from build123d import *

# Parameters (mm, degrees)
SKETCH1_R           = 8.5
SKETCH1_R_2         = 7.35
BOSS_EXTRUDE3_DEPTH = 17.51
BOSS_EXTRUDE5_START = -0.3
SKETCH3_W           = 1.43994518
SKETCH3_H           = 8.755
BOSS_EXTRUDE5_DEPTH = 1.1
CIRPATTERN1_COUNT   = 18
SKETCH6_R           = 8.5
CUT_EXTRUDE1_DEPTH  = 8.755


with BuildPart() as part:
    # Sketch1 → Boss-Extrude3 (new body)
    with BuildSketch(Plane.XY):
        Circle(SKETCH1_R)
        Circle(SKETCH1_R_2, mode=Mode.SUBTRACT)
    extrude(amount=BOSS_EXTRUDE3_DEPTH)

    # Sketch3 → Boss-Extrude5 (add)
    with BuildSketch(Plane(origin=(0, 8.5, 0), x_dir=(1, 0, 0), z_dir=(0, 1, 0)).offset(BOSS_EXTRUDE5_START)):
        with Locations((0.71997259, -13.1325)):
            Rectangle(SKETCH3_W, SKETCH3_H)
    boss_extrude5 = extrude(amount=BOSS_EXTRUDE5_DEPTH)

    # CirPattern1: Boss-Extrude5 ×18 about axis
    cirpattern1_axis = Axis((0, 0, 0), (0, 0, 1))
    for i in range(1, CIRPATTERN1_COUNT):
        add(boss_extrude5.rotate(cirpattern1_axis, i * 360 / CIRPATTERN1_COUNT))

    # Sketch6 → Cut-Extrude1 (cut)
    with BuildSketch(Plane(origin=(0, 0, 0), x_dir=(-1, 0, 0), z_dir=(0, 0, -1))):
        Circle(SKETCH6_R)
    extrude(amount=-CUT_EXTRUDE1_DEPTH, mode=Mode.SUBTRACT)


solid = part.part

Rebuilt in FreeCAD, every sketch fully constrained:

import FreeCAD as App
import Part
import Sketcher

V = App.Vector
Q = App.Units.Quantity


def add_polygon(sketch, points):
    """Adds a closed chain of lines whose ends are joined by coincident constraints."""
    first, n = sketch.GeometryCount, len(points)
    for a, b in zip(points, points[1:] + points[:1]):
        sketch.addGeometry(Part.LineSegment(App.Vector(*a, 0), App.Vector(*b, 0)), False)
    for i in range(n):
        sketch.addConstraint(Sketcher.Constraint("Coincident", first + i, 2, first + (i + 1) % n, 1))

doc = App.newDocument("Part")
body = doc.addObject("PartDesign::Body", "Body")

# Sketch on XY plane
sketch1 = body.newObject("Sketcher::SketchObject", "Sketch")
sketch1.AttachmentSupport = (doc.getObject("XY_Plane"), [""])
sketch1.MapMode = "FlatFace"
sketch1.addGeometry([
    Part.Circle(V(0, 0, 0), V(0, 0, 1), 8.5),
    Part.Circle(V(0, 0, 0), V(0, 0, 1), 7.35),
], False)
sketch1.addConstraint([
    Sketcher.Constraint("Coincident", 0, 3, -1, 1),
    Sketcher.Constraint("Coincident", 1, 3, -1, 1),
    Sketcher.Constraint("Diameter", 0, Q("17 mm")),
    Sketcher.Constraint("Diameter", 1, Q("14.7 mm")),
])
pad1 = body.newObject("PartDesign::Pad", "Pad")
pad1.Profile = sketch1
pad1.Length = 17.51

# Sketch on XZ plane
sketch2 = body.newObject("Sketcher::SketchObject", "Sketch001")
sketch2.AttachmentSupport = (doc.getObject("XZ_Plane"), [""])
sketch2.MapMode = "FlatFace"
sketch2.AttachmentOffset = App.Placement(V(0, 0, -8.2), App.Rotation())
add_polygon(sketch2, [(0, 8.755), (0, 17.51), (1.439945, 17.51), (1.439945, 8.755)])  # lines 0-3
sketch2.addConstraint([
    Sketcher.Constraint("Vertical", 0),
    Sketcher.Constraint("Horizontal", 1),
    Sketcher.Constraint("Vertical", 2),
    Sketcher.Constraint("Horizontal", 3),
    Sketcher.Constraint("PointOnObject", 0, 2, -2),
    Sketcher.Constraint("DistanceY", 0, 1, 0, 2, Q("8.755 mm")),
    Sketcher.Constraint("DistanceY", -1, 1, 0, 2, Q("17.51 mm")),
    Sketcher.Constraint("DistanceX", 1, 1, 1, 2, Q("1.439945 mm")),
])
pad2 = body.newObject("PartDesign::Pad", "Pad001")
pad2.Profile = sketch2
pad2.Length = 1.1
pad2.Reversed = True
doc.recompute()

polarpattern = body.newObject("PartDesign::PolarPattern", "PolarPattern")
polarpattern.Originals = [pad2]
polarpattern.Axis = (doc.getObject("Z_Axis"), [""])
polarpattern.Angle = 360
polarpattern.Occurrences = 18
body.Tip = polarpattern

# Sketch on XY plane
sketch3 = body.newObject("Sketcher::SketchObject", "Sketch002")
sketch3.AttachmentSupport = (doc.getObject("XY_Plane"), [""])
sketch3.MapMode = "FlatFace"
sketch3.addGeometry(Part.Circle(V(0, 0, 0), V(0, 0, 1), 8.5), False)
sketch3.addConstraint([
    Sketcher.Constraint("Coincident", 0, 3, -1, 1),
    Sketcher.Constraint("Diameter", 0, Q("17 mm")),
])
pocket1 = body.newObject("PartDesign::Pocket", "Pocket")
pocket1.Profile = sketch3
pocket1.Length = 8.755
pocket1.Reversed = True

doc.recompute()
